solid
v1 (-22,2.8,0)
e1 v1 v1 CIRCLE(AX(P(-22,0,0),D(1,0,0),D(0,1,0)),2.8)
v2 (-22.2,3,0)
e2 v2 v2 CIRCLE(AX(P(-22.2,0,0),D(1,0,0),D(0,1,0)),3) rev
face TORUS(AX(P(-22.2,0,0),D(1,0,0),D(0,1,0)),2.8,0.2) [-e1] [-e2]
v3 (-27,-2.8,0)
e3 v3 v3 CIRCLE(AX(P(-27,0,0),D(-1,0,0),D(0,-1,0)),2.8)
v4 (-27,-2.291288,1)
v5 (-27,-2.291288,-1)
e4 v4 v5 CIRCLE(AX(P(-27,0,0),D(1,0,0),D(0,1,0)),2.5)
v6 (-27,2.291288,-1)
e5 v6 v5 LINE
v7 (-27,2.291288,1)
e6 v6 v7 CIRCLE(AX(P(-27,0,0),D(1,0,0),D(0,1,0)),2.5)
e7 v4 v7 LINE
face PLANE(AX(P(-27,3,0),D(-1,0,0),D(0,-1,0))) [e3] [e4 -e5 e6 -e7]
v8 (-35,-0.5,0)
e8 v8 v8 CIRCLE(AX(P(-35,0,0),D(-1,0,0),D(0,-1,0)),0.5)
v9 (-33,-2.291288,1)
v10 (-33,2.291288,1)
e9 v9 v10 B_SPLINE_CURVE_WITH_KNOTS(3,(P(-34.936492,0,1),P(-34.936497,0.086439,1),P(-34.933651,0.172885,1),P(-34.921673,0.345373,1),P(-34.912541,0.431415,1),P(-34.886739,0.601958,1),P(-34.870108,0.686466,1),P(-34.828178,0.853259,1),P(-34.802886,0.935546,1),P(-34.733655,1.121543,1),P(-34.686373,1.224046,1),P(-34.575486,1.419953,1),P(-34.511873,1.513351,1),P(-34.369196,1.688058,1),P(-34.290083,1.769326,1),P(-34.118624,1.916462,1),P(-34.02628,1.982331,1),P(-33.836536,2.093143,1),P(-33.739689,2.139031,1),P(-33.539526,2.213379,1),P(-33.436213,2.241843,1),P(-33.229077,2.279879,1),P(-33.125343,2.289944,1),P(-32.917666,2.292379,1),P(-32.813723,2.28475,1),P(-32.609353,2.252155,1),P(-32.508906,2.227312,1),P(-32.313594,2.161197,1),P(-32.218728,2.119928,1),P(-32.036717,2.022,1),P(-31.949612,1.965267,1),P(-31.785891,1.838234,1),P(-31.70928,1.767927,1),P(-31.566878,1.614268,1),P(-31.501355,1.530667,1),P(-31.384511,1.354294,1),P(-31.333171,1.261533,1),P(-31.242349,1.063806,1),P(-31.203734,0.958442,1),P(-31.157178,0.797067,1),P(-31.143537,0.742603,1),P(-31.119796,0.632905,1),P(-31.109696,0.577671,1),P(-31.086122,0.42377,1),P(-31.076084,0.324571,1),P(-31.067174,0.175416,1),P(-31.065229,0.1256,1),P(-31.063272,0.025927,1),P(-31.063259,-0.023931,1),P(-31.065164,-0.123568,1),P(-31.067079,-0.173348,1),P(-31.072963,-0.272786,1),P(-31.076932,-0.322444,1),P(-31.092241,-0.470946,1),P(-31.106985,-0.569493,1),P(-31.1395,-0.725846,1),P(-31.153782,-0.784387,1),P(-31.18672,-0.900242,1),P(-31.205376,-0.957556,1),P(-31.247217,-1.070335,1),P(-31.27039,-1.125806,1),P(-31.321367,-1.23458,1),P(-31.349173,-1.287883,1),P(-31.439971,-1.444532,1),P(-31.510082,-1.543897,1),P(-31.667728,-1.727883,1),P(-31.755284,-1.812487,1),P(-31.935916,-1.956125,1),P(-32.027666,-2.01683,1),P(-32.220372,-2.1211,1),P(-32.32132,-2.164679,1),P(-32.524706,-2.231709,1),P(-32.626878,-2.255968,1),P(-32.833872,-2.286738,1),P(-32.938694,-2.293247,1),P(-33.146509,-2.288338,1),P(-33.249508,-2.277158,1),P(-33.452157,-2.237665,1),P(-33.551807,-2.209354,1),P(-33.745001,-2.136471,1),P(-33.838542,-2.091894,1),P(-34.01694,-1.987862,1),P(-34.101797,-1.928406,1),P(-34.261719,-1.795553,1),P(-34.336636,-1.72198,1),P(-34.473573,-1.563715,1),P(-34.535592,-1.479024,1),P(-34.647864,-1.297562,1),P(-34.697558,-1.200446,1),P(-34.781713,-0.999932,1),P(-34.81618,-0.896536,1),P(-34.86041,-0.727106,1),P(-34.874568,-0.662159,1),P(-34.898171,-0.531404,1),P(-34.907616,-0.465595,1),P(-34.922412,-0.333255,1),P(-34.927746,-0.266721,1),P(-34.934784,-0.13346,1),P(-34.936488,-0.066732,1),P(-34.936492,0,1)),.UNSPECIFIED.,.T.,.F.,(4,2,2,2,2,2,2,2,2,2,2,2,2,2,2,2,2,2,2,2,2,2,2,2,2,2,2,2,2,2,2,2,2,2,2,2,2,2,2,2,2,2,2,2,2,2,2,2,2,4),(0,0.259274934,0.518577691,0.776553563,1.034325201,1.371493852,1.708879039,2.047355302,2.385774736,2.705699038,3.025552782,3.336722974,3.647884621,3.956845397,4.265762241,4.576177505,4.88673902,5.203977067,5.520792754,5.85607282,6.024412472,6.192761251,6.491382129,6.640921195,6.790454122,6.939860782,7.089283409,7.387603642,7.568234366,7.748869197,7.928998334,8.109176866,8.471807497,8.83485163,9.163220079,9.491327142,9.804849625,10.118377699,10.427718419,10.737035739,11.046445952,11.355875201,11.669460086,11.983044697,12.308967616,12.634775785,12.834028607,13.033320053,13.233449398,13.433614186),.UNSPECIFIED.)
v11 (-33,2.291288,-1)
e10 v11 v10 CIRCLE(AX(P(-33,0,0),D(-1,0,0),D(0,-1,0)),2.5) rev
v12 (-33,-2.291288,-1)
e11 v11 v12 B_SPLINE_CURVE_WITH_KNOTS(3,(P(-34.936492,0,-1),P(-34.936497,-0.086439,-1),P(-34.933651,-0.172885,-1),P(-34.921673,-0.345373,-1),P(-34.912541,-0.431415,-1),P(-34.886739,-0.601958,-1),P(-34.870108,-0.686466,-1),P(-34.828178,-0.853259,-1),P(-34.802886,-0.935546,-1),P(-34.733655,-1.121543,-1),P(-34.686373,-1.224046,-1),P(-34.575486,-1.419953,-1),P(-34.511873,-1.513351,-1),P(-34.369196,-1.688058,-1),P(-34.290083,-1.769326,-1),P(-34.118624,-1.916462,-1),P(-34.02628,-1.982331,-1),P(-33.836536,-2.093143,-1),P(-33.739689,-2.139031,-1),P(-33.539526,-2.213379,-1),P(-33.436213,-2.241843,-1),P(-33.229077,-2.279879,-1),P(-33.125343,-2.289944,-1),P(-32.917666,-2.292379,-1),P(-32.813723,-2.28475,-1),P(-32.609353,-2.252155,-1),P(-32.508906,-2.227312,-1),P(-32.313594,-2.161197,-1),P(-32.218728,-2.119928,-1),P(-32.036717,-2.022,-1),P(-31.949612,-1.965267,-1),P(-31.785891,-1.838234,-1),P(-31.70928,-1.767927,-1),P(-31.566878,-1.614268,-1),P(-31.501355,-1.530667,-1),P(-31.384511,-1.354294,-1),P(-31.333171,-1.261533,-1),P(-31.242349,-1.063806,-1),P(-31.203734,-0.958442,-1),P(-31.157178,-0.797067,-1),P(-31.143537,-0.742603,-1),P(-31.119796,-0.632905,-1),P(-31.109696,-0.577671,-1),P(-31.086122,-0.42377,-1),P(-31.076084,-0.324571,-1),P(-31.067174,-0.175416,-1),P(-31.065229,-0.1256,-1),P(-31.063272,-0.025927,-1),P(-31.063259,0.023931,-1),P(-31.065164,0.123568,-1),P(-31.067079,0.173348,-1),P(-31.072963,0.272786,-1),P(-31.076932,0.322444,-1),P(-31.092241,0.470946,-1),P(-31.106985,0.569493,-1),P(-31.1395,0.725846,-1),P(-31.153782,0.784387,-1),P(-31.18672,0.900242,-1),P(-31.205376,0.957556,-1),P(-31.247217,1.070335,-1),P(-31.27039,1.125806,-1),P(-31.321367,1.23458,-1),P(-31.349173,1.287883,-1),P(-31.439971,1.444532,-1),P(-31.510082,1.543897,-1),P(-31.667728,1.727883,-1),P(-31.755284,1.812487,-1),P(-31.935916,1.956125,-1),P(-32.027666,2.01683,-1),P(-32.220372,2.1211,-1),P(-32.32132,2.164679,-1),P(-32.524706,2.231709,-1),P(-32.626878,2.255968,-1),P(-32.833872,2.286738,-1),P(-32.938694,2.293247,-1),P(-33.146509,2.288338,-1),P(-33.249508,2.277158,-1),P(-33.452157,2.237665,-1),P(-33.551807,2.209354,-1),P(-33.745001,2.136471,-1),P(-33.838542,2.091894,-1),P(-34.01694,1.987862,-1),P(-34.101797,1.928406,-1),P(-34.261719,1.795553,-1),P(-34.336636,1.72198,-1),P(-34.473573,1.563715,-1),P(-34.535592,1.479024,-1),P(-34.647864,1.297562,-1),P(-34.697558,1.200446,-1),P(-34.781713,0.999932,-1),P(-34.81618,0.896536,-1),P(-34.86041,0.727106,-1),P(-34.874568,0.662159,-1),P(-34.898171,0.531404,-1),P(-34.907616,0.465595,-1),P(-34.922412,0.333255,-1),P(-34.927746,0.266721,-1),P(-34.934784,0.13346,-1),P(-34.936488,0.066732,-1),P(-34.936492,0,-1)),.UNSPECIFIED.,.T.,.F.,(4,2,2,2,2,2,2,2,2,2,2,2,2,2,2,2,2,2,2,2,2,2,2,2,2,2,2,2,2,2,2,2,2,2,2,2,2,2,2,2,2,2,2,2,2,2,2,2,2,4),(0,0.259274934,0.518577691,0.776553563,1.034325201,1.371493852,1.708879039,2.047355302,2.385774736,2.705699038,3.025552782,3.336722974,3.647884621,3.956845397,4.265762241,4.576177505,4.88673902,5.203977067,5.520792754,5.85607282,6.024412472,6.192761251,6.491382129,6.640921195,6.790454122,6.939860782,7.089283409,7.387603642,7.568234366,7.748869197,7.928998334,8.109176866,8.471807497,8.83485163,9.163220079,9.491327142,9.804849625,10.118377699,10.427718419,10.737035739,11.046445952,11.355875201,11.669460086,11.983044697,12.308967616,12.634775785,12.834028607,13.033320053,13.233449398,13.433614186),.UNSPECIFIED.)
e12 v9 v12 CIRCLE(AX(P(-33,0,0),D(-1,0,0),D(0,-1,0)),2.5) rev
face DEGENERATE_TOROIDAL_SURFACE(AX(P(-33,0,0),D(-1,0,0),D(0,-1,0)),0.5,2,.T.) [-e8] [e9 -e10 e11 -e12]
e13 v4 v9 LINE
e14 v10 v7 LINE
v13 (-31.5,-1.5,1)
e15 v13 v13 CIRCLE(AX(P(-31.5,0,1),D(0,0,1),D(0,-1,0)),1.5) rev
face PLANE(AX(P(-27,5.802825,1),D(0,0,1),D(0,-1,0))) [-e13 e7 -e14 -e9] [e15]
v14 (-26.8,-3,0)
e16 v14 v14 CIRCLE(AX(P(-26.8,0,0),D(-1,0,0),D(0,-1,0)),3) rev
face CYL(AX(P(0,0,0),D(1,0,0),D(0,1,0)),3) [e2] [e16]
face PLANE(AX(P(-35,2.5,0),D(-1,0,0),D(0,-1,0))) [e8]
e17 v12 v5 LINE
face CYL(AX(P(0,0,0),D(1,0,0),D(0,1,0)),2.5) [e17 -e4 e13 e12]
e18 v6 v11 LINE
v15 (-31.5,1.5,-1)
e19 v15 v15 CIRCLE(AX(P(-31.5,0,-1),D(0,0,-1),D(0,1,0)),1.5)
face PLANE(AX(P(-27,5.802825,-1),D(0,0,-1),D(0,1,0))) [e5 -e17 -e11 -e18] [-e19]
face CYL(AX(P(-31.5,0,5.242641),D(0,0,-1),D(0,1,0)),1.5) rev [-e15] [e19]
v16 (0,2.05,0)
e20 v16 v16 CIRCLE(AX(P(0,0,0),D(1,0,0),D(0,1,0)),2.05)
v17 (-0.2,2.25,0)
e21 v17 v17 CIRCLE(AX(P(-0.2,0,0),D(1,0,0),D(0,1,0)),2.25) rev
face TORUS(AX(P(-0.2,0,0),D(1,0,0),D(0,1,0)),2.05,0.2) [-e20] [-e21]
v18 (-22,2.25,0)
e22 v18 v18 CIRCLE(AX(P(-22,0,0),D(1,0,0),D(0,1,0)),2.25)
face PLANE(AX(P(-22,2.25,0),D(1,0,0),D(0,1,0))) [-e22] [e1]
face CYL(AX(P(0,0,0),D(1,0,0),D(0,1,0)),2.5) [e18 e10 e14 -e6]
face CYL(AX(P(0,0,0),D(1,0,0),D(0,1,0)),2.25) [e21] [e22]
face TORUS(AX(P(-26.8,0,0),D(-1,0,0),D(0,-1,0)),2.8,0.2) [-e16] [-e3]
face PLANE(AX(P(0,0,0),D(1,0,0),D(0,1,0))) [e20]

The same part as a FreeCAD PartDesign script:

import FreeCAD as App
import Part
import Sketcher


def edges_at(feature, points):
    """Names of the edges that pass closest to the given points."""
    edges = feature.Shape.Edges
    near = lambda p: min(range(len(edges)), key=lambda i: edges[i].distToShape(Part.Vertex(*p))[0])
    return sorted({f"Edge{near(p) + 1}" for p in points})


def add_polygon(sketch, points):
    """Adds a closed chain of lines whose ends are joined by coincident constraints."""
    first, n = sketch.GeometryCount, len(points)
    for a, b in zip(points, points[1:] + points[:1]):
        sketch.addGeometry(Part.LineSegment(App.Vector(*a, 0), App.Vector(*b, 0)), False)
    for i in range(n):
        sketch.addConstraint(Sketcher.Constraint("Coincident", first + i, 2, first + (i + 1) % n, 1))

doc = App.newDocument("Part")
body = doc.addObject("PartDesign::Body", "Body")

# Sketch on XY plane
sketch1 = doc.addObject("Sketcher::SketchObject", "Sketch")
body.addObject(sketch1)
sketch1.AttachmentSupport = (doc.XY_Plane, [""])
sketch1.MapMode = "FlatFace"
add_polygon(sketch1, [(0, 0), (0, 2.25), (-22, 2.25), (-22, 3), (-27, 3), (-27, 2.5), (-35, 2.5), (-35, 0)])  # lines 0-7
sketch1.addConstraint([
    Sketcher.Constraint("Vertical", 0),
    Sketcher.Constraint("Horizontal", 1),
    Sketcher.Constraint("Vertical", 2),
    Sketcher.Constraint("Horizontal", 3),
    Sketcher.Constraint("Vertical", 4),
    Sketcher.Constraint("Horizontal", 5),
    Sketcher.Constraint("Vertical", 6),
    Sketcher.Constraint("Horizontal", 7),
    Sketcher.Constraint("Coincident", 7, 2, -1, 1),
    Sketcher.Constraint("DistanceX", 1, 2, 1, 1, 22.0),
    Sketcher.Constraint("DistanceX", 3, 2, 3, 1, 5.0),
    Sketcher.Constraint("DistanceX", 5, 2, 5, 1, 8.0),
    Sketcher.Constraint("DistanceY", 4, 2, 4, 1, 0.5),
    Sketcher.Constraint("DistanceY", 6, 2, 6, 1, 2.5),
    Sketcher.Constraint("DistanceY", 0, 1, 0, 2, 2.25),
])
revolution = doc.addObject("PartDesign::Revolution", "Revolution")
body.addObject(revolution)
revolution.Profile = sketch1
revolution.ReferenceAxis = (sketch1, ["H_Axis"])
revolution.Angle = 360
doc.recompute()

fillet = doc.addObject("PartDesign::Fillet", "Fillet")
body.addObject(fillet)
fillet.Base = (revolution, edges_at(revolution, [(-35, -2.5, 0)]))
fillet.Radius = 2

# Sketch on YZ plane
sketch2 = doc.addObject("Sketcher::SketchObject", "Sketch001")
body.addObject(sketch2)
sketch2.AttachmentSupport = (doc.YZ_Plane, [""])
sketch2.MapMode = "FlatFace"
sketch2.AttachmentOffset = App.Placement(App.Vector(0, 0, -35), App.Rotation())
sketch2.addGeometry(Part.Circle(App.Vector(0, 0, 0), App.Vector(0, 0, 1), 7.321357), False)  # 0
add_polygon(sketch2, [(-6.158826, 1), (-6.158826, -1), (5.802825, -1), (5.802825, 1)])  # lines 1-4
sketch2.addConstraint([
    Sketcher.Constraint("Vertical", 1),
    Sketcher.Constraint("Horizontal", 2),
    Sketcher.Constraint("Vertical", 3),
    Sketcher.Constraint("Horizontal", 4),
    Sketcher.Constraint("Coincident", 0, 3, -1, 1),
    Sketcher.Constraint("DistanceY", 1, 2, 1, 1, 2.0),
    Sketcher.Constraint("DistanceY", 1, 2, -1, 1, 1.0),
    Sketcher.Constraint("Diameter", 0, 14.642713),
    Sketcher.Constraint("DistanceX", 2, 1, 2, 2, 11.961651),
    Sketcher.Constraint("DistanceX", 1, 2, -1, 1, 6.158826),
])
pocket1 = doc.addObject("PartDesign::Pocket", "Pocket")
body.addObject(pocket1)
pocket1.Profile = sketch2
pocket1.Length = 8
pocket1.Reversed = True

# Sketch on XY plane
sketch3 = doc.addObject("Sketcher::SketchObject", "Sketch002")
body.addObject(sketch3)
sketch3.AttachmentSupport = (doc.XY_Plane, [""])
sketch3.MapMode = "FlatFace"
sketch3.AttachmentOffset = App.Placement(App.Vector(0, 0, -1), App.Rotation())
sketch3.addGeometry(Part.Circle(App.Vector(-31.5, 0, 0), App.Vector(0, 0, 1), 1.5), False)
sketch3.addConstraint([
    Sketcher.Constraint("PointOnObject", 0, 3, -1),
    Sketcher.Constraint("Diameter", 0, 3.0),
    Sketcher.Constraint("DistanceX", 0, 3, -1, 1, 31.5),
])
pocket2 = doc.addObject("PartDesign::Pocket", "Pocket001")
body.addObject(pocket2)
pocket2.Profile = sketch3
pocket2.Length = 2
pocket2.Reversed = True
doc.recompute()

fillet2 = doc.addObject("PartDesign::Fillet", "Fillet001")
body.addObject(fillet2)
fillet2.Base = (pocket2, edges_at(pocket2, [(-27, -3, 0), (-22, -3, 0), (0, -2.25, 0)]))
fillet2.Radius = 0.2

doc.recompute()
